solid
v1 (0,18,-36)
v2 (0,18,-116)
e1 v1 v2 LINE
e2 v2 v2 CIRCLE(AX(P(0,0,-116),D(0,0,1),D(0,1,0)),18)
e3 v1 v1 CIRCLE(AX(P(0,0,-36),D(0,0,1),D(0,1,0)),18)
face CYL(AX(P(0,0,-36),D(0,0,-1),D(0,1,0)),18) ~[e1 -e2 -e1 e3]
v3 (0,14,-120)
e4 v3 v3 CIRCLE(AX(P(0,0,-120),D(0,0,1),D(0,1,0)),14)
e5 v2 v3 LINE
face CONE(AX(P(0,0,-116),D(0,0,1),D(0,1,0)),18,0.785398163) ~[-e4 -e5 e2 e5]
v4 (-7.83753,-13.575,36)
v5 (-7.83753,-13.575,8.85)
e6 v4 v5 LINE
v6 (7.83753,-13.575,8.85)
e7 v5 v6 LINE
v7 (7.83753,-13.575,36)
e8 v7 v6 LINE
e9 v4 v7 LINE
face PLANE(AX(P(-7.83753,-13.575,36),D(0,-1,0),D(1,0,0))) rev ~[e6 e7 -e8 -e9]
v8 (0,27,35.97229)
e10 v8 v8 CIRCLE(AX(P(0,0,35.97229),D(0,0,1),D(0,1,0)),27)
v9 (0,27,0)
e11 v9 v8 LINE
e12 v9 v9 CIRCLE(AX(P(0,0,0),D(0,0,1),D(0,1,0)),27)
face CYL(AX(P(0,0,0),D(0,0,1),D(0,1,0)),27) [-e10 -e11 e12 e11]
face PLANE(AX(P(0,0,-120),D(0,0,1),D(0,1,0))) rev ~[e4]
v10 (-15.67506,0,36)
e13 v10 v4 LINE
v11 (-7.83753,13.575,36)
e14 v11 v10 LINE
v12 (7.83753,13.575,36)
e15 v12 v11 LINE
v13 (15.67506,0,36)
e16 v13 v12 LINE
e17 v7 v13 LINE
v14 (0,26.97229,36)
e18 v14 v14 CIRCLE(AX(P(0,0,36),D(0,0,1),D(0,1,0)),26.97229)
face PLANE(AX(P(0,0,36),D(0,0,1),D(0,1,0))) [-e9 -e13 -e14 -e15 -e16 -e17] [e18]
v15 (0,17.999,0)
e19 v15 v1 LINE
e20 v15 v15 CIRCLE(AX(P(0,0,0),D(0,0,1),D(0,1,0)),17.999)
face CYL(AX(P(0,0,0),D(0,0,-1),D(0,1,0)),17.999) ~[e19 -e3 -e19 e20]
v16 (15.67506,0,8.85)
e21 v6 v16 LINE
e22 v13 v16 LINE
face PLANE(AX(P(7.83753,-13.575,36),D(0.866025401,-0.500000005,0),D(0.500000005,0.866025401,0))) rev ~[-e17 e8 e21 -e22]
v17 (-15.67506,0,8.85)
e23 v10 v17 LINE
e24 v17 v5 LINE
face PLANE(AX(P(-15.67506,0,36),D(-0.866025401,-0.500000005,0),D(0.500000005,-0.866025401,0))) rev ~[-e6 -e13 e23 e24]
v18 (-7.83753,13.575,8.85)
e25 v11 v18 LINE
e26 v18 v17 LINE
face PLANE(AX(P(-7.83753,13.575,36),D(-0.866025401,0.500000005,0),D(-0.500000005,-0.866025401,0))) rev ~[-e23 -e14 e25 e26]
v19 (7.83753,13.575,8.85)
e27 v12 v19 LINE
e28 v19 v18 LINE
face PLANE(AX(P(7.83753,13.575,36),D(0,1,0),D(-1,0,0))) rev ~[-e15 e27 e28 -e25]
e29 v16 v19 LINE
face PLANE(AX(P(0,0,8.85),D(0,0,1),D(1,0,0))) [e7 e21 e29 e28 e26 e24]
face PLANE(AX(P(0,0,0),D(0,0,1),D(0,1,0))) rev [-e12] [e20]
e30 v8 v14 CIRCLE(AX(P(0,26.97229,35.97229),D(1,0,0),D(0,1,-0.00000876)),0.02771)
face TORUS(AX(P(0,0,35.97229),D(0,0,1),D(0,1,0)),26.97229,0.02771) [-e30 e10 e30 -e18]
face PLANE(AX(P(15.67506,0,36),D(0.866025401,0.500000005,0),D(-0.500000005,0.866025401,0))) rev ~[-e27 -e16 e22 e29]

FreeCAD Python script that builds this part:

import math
import FreeCAD as App
import Part
import Sketcher
Q = App.Units.Quantity


def add_polygon(sketch, points):
    """Adds a closed chain of lines whose ends are joined by coincident constraints."""
    first, n = sketch.GeometryCount, len(points)
    for a, b in zip(points, points[1:] + points[:1]):
        sketch.addGeometry(Part.LineSegment(App.Vector(*a, 0), App.Vector(*b, 0)), False)
    for i in range(n):
        sketch.addConstraint(Sketcher.Constraint("Coincident", first + i, 2, first + (i + 1) % n, 1))

doc = App.newDocument("Part")
body = doc.addObject("PartDesign::Body", "Body")

# Sketch on YZ plane
sketch1 = doc.addObject("Sketcher::SketchObject", "Sketch")
body.addObject(sketch1)
sketch1.AttachmentSupport = (doc.YZ_Plane, [""])
sketch1.MapMode = "FlatFace"
sketch1.addGeometry([
    Part.LineSegment(App.Vector(17.999, 0, 0), App.Vector(27, 0, 0)),  # 0
    Part.LineSegment(App.Vector(27, 0, 0), App.Vector(27, 35.972, 0)),  # 1
    Part.ArcOfCircle(Part.Circle(App.Vector(26.972, 35.972, 0), App.Vector(0, 0, 1), 0.028), math.radians(0), math.radians(90)),  # 2
    Part.LineSegment(App.Vector(26.972, 36, 0), App.Vector(0, 36, 0)),  # 3
    Part.LineSegment(App.Vector(0, 36, 0), App.Vector(0, -120, 0)),  # 4
    Part.LineSegment(App.Vector(0, -120, 0), App.Vector(14, -120, 0)),  # 5
    Part.LineSegment(App.Vector(14, -120, 0), App.Vector(18, -116, 0)),  # 6
    Part.LineSegment(App.Vector(18, -116, 0), App.Vector(18, -36, 0)),  # 7
    Part.LineSegment(App.Vector(18, -36, 0), App.Vector(17.999, 0, 0)),  # 8
], False)
sketch1.addConstraint([
    Sketcher.Constraint("Coincident", 0, 2, 1, 1),
    Sketcher.Constraint("Coincident", 1, 2, 2, 1),
    Sketcher.Constraint("Coincident", 2, 2, 3, 1),
    Sketcher.Constraint("Coincident", 3, 2, 4, 1),
    Sketcher.Constraint("Coincident", 4, 2, 5, 1),
    Sketcher.Constraint("Coincident", 5, 2, 6, 1),
    Sketcher.Constraint("Coincident", 6, 2, 7, 1),
    Sketcher.Constraint("Coincident", 7, 2, 8, 1),
    Sketcher.Constraint("Coincident", 8, 2, 0, 1),
    Sketcher.Constraint("Horizontal", 0),
    Sketcher.Constraint("Vertical", 1),
    Sketcher.Constraint("Horizontal", 3),
    Sketcher.Constraint("Vertical", 4),
    Sketcher.Constraint("Horizontal", 5),
    Sketcher.Constraint("Vertical", 7),
    Sketcher.Constraint("PointOnObject", 0, 2, -1),
    Sketcher.Constraint("PointOnObject", 3, 2, -2),
    Sketcher.Constraint("Horizontal", 2, 3, 1, 2),
    Sketcher.Constraint("DistanceX", 5, 1, 5, 2, 14.0),
    Sketcher.Constraint("DistanceY", 4, 2, 4, 1, 156.0),
    Sketcher.Constraint("DistanceY", 7, 1, 7, 2, 80.0),
    Sketcher.Constraint("Angle", 6, Q("45 deg")),
    Sketcher.Constraint("Distance", 8, 36.0),
    Sketcher.Constraint("DistanceX", -1, 1, 0, 2, 27.0),
    Sketcher.Constraint("DistanceY", -1, 1, 2, 2, 36.0),
    Sketcher.Constraint("DistanceX", 0, 1, 0, 2, 9.001),
    Sketcher.Constraint("Radius", 2, 0.02771),
    Sketcher.Constraint("DistanceX", 3, 2, 3, 1, 26.97229),
])
revolution = doc.addObject("PartDesign::Revolution", "Revolution")
body.addObject(revolution)
revolution.Profile = sketch1
revolution.ReferenceAxis = (sketch1, ["V_Axis"])
revolution.Angle = 360

# Sketch on XY plane
sketch2 = doc.addObject("Sketcher::SketchObject", "Sketch001")
body.addObject(sketch2)
sketch2.AttachmentSupport = (doc.XY_Plane, [""])
sketch2.MapMode = "FlatFace"
sketch2.AttachmentOffset = App.Placement(App.Vector(0, 0, 36), App.Rotation())
add_polygon(sketch2, [(16, 0), (8, 14), (-8, 14), (-16, 0), (-8, -14), (8, -14)])  # lines 0-5
sketch2.addConstraint([
    Sketcher.Constraint("Horizontal", 1),
    Sketcher.Constraint("Horizontal", 4),
    Sketcher.Constraint("Symmetric", 0, 2, 3, 2, -1, 1),
    Sketcher.Constraint("Symmetric", 2, 2, 5, 2, -1, 1),
    Sketcher.Constraint("PointOnObject", 2, 2, -1),
    Sketcher.Constraint("Parallel", 2, 5),
    Sketcher.Constraint("Vertical", 1, 2, 3, 2),
    Sketcher.Constraint("Angle", 0, Q("120 deg")),
    Sketcher.Constraint("DistanceY", 3, 2, 1, 2, 27.15),
    Sketcher.Constraint("DistanceX", 1, 2, 1, 1, 15.67506),
])
pocket1 = doc.addObject("PartDesign::Pocket", "Pocket")
body.addObject(pocket1)
pocket1.Profile = sketch2
pocket1.Length = 27.15

doc.recompute()
